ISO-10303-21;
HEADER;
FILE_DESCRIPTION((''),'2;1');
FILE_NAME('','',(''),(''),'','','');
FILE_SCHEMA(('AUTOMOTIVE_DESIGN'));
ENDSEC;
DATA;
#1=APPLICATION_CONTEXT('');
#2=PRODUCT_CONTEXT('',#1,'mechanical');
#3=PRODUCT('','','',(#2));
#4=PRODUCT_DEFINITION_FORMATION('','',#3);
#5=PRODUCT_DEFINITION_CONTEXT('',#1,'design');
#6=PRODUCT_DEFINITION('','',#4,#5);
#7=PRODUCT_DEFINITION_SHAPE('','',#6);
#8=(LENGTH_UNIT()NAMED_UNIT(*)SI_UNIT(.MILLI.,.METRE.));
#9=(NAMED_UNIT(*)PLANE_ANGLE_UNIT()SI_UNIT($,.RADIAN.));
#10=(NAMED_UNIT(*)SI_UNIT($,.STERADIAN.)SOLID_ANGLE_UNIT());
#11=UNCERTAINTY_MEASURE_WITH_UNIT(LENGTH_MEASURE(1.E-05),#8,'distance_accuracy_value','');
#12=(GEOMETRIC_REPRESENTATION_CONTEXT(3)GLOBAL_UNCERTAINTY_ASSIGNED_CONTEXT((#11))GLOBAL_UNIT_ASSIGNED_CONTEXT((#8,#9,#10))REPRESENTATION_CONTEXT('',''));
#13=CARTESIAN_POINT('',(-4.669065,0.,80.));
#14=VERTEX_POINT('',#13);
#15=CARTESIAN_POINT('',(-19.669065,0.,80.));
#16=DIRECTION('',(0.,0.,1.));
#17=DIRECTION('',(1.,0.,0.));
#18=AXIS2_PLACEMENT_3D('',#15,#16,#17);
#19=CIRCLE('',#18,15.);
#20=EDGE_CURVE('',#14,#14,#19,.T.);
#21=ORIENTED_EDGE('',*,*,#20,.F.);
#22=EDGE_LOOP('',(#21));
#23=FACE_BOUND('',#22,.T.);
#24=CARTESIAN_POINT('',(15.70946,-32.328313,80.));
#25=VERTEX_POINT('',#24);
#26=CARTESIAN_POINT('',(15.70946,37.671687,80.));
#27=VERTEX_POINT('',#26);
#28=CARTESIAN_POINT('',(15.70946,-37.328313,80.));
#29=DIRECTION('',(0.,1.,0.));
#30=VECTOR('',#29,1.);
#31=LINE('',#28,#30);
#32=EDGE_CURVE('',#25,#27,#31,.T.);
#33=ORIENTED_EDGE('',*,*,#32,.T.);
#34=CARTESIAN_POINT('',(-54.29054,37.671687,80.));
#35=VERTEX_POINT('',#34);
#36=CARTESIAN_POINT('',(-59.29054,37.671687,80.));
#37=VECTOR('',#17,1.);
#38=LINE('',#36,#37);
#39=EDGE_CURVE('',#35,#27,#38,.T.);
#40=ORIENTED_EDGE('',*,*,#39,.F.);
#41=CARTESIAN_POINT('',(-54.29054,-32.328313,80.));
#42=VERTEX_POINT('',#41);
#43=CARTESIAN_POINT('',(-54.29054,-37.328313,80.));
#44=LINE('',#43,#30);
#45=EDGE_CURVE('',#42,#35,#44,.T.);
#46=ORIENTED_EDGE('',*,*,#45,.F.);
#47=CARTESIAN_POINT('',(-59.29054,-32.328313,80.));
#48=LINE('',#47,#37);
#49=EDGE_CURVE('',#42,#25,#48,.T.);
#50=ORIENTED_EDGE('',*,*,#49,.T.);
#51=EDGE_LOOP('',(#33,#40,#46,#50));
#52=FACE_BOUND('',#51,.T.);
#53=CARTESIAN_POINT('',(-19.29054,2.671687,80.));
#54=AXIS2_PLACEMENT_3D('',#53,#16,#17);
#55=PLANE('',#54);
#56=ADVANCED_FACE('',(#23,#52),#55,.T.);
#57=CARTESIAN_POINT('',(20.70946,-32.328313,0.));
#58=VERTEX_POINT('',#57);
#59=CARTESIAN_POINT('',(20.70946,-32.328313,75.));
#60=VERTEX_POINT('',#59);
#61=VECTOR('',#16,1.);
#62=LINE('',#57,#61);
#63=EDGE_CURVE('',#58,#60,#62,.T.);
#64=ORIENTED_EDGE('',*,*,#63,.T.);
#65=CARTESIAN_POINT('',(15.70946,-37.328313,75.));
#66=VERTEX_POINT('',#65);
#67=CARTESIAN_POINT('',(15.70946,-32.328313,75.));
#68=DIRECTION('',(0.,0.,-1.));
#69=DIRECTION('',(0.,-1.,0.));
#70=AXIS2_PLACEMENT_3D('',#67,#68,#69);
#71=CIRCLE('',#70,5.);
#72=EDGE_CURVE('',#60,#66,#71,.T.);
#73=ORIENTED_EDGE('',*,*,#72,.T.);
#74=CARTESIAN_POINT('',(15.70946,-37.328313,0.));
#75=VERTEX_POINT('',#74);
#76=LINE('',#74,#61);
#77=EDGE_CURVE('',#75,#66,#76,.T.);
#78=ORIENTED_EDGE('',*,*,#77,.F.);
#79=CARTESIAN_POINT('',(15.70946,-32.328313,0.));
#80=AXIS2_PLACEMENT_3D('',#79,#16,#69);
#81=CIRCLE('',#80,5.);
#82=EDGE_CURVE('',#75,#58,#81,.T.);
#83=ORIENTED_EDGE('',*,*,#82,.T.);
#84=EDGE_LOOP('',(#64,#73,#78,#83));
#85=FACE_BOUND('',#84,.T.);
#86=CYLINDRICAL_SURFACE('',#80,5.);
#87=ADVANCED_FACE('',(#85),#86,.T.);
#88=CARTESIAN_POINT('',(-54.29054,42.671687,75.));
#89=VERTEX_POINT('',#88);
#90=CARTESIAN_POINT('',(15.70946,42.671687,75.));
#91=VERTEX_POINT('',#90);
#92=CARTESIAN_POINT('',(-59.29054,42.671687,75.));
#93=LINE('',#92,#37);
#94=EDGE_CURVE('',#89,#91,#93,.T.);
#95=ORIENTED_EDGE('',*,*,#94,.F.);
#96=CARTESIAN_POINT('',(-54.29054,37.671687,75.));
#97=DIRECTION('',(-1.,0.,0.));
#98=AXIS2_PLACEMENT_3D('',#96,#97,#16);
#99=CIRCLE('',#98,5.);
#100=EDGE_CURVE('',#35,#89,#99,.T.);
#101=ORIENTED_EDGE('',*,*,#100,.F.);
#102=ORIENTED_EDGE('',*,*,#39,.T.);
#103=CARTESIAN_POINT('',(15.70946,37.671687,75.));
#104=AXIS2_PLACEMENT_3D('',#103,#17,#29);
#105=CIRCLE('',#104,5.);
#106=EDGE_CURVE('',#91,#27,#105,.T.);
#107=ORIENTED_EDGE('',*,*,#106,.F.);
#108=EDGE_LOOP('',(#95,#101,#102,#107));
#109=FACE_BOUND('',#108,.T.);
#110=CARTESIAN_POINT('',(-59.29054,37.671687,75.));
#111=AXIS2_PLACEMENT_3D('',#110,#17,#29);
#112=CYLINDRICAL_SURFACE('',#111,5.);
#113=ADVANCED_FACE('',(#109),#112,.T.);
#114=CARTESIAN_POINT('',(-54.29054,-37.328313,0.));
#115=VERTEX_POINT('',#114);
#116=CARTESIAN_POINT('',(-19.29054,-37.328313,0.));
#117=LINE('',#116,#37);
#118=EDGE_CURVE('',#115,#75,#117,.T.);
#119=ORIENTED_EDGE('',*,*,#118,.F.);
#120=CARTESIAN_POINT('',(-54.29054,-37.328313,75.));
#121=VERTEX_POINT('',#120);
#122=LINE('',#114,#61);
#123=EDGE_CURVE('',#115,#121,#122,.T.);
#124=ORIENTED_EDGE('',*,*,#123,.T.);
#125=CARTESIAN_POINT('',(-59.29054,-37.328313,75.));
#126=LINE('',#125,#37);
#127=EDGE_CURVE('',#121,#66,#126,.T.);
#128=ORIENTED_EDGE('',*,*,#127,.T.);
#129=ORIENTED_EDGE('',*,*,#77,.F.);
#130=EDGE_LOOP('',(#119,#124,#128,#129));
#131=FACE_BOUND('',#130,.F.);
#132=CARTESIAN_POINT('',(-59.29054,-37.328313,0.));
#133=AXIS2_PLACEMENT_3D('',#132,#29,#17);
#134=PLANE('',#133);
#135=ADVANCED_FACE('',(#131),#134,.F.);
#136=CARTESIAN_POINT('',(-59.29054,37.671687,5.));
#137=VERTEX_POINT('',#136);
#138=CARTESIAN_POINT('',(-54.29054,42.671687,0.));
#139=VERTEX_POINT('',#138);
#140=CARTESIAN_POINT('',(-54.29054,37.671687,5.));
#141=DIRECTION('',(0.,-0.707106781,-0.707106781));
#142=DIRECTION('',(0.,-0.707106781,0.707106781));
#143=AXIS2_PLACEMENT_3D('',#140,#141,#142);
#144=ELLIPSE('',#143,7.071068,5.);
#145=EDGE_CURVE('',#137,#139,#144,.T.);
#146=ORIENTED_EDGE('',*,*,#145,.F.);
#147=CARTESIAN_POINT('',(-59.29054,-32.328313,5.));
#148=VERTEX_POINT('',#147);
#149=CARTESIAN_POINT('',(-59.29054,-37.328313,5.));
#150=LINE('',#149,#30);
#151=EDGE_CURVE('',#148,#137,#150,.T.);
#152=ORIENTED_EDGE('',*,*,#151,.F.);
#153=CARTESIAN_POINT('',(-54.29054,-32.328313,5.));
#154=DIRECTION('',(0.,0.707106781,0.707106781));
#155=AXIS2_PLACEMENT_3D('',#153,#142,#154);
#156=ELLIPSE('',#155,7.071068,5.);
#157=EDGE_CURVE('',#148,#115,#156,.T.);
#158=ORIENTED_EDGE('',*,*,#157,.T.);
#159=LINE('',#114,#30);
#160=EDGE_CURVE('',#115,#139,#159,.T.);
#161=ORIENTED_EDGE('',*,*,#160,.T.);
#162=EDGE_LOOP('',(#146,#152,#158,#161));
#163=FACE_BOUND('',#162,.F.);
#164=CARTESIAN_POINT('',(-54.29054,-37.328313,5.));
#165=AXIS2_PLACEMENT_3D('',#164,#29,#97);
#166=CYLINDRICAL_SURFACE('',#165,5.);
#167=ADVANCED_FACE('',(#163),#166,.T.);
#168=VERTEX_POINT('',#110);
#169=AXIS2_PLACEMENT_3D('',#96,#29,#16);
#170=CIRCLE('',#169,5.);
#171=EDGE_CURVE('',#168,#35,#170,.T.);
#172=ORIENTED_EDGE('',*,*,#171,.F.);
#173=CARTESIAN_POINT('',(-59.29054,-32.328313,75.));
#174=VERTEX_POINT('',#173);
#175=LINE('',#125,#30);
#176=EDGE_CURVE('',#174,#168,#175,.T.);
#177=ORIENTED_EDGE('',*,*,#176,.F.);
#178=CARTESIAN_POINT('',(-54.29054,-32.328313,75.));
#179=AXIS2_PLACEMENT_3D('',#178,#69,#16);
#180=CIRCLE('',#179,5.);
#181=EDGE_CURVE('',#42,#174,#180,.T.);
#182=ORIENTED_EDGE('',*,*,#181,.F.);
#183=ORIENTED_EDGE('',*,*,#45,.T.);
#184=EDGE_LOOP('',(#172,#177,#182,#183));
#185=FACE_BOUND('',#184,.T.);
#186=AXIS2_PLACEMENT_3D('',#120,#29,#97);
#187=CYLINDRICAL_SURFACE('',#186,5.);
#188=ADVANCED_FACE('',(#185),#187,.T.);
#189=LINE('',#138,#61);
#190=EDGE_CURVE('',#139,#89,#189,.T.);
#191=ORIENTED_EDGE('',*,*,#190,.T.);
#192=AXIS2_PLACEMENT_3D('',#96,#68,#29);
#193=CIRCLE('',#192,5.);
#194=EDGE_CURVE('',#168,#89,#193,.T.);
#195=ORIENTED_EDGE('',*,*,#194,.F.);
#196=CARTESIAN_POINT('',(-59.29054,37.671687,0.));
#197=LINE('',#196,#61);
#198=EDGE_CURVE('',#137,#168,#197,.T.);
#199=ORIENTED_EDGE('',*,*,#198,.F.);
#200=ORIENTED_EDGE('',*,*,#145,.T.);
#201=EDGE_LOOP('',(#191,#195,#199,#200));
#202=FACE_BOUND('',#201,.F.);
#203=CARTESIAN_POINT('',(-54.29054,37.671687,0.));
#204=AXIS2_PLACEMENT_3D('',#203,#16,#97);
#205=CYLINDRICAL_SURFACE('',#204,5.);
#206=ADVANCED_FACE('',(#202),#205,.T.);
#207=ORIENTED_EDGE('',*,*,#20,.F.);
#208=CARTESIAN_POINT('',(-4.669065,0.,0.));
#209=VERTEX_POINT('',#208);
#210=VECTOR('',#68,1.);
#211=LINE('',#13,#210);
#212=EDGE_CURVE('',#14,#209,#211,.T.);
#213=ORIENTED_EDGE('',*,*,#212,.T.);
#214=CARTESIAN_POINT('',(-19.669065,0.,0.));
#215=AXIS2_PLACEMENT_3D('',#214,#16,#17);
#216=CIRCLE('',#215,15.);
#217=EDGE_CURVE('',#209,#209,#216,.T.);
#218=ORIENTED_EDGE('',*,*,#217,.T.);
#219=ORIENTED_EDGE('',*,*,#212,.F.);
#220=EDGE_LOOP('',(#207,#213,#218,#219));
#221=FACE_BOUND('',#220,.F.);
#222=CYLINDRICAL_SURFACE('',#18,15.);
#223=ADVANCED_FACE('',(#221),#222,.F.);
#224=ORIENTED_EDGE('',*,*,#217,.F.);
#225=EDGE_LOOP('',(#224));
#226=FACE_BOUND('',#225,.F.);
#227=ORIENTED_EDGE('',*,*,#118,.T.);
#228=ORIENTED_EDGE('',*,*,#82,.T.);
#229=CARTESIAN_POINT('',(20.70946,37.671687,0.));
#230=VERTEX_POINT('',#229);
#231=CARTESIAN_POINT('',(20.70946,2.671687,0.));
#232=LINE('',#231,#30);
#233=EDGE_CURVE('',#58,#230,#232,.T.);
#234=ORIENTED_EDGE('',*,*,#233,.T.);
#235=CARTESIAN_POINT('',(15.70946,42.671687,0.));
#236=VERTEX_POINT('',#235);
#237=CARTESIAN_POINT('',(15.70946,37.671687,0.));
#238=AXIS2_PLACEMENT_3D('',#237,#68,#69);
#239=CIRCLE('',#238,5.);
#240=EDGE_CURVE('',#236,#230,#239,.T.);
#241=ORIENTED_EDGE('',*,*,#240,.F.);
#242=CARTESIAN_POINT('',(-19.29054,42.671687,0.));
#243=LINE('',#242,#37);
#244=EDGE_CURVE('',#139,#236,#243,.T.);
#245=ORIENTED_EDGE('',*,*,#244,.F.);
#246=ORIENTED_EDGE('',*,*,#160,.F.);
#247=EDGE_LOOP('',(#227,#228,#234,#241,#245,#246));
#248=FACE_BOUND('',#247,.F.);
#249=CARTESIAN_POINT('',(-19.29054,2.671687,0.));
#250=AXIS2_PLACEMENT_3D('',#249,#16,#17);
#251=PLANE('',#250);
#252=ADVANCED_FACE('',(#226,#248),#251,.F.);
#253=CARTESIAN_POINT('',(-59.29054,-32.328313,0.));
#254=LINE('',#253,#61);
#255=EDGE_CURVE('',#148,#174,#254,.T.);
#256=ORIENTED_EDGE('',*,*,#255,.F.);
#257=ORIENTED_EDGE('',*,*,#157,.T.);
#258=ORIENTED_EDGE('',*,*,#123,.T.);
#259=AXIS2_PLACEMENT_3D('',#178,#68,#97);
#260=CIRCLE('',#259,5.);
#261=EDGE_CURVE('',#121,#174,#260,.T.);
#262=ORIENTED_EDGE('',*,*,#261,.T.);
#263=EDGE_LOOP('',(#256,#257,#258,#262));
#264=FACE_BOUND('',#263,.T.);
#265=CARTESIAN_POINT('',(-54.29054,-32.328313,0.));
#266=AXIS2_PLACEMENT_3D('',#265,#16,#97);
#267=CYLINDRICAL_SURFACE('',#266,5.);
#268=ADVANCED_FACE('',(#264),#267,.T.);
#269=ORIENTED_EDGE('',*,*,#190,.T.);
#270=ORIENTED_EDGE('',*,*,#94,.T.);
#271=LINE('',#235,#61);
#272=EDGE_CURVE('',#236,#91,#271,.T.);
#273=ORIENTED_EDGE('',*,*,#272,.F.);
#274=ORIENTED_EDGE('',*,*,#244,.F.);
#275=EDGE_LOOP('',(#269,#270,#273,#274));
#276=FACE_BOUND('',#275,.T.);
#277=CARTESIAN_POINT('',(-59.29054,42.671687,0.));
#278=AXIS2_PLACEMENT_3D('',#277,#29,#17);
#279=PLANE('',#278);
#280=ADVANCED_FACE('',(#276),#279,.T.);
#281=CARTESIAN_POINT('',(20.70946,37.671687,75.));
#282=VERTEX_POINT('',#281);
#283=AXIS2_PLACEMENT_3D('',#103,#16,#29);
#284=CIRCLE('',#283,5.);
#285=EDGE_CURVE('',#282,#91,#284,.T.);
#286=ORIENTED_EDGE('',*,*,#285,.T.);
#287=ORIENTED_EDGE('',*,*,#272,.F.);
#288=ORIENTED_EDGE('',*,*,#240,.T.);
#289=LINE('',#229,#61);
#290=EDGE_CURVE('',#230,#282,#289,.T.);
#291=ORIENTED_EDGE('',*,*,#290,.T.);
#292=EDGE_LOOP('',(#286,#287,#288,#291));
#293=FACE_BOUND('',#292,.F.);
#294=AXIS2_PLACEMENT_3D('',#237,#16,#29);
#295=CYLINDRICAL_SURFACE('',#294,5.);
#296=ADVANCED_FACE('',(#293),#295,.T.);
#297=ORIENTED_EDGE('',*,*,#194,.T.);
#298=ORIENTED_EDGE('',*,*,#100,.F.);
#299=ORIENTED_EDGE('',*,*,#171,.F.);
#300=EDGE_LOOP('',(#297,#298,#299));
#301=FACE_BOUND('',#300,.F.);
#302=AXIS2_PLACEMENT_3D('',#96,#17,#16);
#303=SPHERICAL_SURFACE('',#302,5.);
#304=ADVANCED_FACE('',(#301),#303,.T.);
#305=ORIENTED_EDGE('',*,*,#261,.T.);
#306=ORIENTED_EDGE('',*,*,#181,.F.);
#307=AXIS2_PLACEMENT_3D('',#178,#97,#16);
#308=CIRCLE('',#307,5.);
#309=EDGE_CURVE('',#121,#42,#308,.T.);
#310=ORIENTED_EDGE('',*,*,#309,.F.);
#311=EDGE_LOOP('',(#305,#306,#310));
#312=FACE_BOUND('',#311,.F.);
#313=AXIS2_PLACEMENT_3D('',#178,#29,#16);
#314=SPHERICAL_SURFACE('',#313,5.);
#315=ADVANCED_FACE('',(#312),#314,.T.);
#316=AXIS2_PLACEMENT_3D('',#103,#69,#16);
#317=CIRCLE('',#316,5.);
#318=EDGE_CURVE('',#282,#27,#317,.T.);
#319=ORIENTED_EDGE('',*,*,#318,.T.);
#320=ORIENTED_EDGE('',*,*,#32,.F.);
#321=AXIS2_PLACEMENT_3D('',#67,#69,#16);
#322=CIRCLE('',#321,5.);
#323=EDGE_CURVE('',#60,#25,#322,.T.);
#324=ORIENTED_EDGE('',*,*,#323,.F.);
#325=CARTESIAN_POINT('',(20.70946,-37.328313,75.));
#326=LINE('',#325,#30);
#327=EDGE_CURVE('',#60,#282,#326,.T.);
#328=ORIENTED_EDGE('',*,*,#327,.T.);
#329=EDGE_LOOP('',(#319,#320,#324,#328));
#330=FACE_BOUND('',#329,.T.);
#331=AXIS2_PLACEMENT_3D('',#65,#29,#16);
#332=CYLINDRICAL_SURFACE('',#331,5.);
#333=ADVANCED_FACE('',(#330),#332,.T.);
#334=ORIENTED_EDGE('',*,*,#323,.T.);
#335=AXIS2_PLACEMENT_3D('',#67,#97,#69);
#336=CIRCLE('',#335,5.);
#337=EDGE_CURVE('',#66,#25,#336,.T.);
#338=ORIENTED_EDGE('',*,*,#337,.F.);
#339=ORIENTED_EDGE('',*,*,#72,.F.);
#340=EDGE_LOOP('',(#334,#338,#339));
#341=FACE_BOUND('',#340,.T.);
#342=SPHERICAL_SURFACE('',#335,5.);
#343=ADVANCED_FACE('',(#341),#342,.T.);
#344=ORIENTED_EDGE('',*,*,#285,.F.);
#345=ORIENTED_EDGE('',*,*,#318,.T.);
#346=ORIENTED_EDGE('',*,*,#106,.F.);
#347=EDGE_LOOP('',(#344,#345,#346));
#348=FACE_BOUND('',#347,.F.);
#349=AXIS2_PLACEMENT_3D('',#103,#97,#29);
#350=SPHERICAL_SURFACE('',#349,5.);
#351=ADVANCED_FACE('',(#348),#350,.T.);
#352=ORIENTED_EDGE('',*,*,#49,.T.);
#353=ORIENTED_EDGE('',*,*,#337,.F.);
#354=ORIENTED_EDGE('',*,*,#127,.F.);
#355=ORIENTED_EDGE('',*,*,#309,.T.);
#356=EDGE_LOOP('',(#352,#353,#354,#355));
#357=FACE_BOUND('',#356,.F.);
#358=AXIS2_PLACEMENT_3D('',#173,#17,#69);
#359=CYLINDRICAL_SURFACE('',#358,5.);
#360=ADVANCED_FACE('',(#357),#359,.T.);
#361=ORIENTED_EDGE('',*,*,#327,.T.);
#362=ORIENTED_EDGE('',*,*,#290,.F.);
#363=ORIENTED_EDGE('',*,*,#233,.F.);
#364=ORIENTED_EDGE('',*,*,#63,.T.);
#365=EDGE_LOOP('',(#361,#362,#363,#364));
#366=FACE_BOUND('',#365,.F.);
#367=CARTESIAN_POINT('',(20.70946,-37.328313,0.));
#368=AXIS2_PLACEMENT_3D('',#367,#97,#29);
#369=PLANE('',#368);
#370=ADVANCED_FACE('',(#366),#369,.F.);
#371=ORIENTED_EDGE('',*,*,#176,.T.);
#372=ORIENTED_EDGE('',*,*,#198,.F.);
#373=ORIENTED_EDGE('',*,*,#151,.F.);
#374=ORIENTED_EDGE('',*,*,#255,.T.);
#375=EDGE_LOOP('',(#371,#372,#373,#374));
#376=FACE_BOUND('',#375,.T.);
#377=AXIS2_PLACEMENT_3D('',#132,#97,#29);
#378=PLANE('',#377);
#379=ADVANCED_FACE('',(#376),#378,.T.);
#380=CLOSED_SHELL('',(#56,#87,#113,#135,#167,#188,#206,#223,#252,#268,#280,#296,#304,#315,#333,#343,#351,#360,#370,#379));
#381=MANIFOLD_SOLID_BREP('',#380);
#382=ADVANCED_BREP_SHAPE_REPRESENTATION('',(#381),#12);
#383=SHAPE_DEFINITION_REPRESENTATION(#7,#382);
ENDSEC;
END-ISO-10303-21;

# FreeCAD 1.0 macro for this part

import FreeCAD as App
import Part
import Sketcher

V = App.Vector


def edges_at(feature, points):
    """Names of the edges that pass closest to the given points."""
    edges = feature.Shape.Edges
    near = lambda p: min(range(len(edges)), key=lambda i: edges[i].distToShape(Part.Vertex(*p))[0])
    return sorted({f"Edge{near(p) + 1}" for p in points})


def add_polygon(sketch, points):
    """Adds a closed chain of lines whose ends are joined by coincident constraints."""
    first, n = sketch.GeometryCount, len(points)
    for a, b in zip(points, points[1:] + points[:1]):
        sketch.addGeometry(Part.LineSegment(App.Vector(*a, 0), App.Vector(*b, 0)), False)
    for i in range(n):
        sketch.addConstraint(Sketcher.Constraint("Coincident", first + i, 2, first + (i + 1) % n, 1))

doc = App.newDocument("Part")
body = doc.addObject("PartDesign::Body", "Body")

sketch1 = body.newObject("Sketcher::SketchObject", "Sketch")
sketch1.AttachmentSupport = (doc.getObject("XY_Plane"), [""])
sketch1.MapMode = "FlatFace"
add_polygon(sketch1, [(-59.29054, 42.671687), (-59.29054, -37.328313), (20.70946, -37.328313), (20.70946, 42.671687)])
sketch1.addConstraint([
    Sketcher.Constraint("Vertical", 0),
    Sketcher.Constraint("Horizontal", 1),
    Sketcher.Constraint("Vertical", 2),
    Sketcher.Constraint("Horizontal", 3),
    Sketcher.Constraint("Equal", 3, 0),
    Sketcher.Constraint("DistanceX", 1, 1, 1, 2, 80.0),
    Sketcher.Constraint("DistanceX", 0, 2, -1, 1, 59.29054),
    Sketcher.Constraint("DistanceY", 0, 2, -1, 1, 37.328313),
])
pad1 = body.newObject("PartDesign::Pad", "Pad")
pad1.Profile = sketch1
pad1.Length = 80

sketch2 = body.newObject("Sketcher::SketchObject", "Sketch001")
sketch2.AttachmentSupport = (doc.getObject("XY_Plane"), [""])
sketch2.MapMode = "FlatFace"
sketch2.AttachmentOffset = App.Placement(V(0, 0, 80), App.Rotation())
sketch2.addGeometry(Part.Circle(V(-19.669065, 0, 0), V(0, 0, 1), 15), False)
sketch2.addConstraint([
    Sketcher.Constraint("PointOnObject", 0, 3, -1),
    Sketcher.Constraint("Diameter", 0, 30.0),
    Sketcher.Constraint("DistanceX", 0, 3, -1, 1, 19.669065),
])
pocket1 = body.newObject("PartDesign::Pocket", "Pocket")
pocket1.Profile = sketch2
pocket1.Type = "ThroughAll"
doc.recompute()

fillet = body.newObject("PartDesign::Fillet", "Fillet")
fillet.Base = (pocket1, edges_at(pocket1, [
    (-19.291, 42.672, 80),
    (-59.291, 2.672, 80),
    (-19.291, -37.328, 80),
    (-59.291, 42.672, 40),
    (-59.291, -37.328, 40),
    (-59.291, 2.672, 0),
    (20.709, 42.672, 40),
    (20.709, -37.328, 40),
    (20.709, 2.672, 80),
]))
fillet.Radius = 5

doc.recompute()
